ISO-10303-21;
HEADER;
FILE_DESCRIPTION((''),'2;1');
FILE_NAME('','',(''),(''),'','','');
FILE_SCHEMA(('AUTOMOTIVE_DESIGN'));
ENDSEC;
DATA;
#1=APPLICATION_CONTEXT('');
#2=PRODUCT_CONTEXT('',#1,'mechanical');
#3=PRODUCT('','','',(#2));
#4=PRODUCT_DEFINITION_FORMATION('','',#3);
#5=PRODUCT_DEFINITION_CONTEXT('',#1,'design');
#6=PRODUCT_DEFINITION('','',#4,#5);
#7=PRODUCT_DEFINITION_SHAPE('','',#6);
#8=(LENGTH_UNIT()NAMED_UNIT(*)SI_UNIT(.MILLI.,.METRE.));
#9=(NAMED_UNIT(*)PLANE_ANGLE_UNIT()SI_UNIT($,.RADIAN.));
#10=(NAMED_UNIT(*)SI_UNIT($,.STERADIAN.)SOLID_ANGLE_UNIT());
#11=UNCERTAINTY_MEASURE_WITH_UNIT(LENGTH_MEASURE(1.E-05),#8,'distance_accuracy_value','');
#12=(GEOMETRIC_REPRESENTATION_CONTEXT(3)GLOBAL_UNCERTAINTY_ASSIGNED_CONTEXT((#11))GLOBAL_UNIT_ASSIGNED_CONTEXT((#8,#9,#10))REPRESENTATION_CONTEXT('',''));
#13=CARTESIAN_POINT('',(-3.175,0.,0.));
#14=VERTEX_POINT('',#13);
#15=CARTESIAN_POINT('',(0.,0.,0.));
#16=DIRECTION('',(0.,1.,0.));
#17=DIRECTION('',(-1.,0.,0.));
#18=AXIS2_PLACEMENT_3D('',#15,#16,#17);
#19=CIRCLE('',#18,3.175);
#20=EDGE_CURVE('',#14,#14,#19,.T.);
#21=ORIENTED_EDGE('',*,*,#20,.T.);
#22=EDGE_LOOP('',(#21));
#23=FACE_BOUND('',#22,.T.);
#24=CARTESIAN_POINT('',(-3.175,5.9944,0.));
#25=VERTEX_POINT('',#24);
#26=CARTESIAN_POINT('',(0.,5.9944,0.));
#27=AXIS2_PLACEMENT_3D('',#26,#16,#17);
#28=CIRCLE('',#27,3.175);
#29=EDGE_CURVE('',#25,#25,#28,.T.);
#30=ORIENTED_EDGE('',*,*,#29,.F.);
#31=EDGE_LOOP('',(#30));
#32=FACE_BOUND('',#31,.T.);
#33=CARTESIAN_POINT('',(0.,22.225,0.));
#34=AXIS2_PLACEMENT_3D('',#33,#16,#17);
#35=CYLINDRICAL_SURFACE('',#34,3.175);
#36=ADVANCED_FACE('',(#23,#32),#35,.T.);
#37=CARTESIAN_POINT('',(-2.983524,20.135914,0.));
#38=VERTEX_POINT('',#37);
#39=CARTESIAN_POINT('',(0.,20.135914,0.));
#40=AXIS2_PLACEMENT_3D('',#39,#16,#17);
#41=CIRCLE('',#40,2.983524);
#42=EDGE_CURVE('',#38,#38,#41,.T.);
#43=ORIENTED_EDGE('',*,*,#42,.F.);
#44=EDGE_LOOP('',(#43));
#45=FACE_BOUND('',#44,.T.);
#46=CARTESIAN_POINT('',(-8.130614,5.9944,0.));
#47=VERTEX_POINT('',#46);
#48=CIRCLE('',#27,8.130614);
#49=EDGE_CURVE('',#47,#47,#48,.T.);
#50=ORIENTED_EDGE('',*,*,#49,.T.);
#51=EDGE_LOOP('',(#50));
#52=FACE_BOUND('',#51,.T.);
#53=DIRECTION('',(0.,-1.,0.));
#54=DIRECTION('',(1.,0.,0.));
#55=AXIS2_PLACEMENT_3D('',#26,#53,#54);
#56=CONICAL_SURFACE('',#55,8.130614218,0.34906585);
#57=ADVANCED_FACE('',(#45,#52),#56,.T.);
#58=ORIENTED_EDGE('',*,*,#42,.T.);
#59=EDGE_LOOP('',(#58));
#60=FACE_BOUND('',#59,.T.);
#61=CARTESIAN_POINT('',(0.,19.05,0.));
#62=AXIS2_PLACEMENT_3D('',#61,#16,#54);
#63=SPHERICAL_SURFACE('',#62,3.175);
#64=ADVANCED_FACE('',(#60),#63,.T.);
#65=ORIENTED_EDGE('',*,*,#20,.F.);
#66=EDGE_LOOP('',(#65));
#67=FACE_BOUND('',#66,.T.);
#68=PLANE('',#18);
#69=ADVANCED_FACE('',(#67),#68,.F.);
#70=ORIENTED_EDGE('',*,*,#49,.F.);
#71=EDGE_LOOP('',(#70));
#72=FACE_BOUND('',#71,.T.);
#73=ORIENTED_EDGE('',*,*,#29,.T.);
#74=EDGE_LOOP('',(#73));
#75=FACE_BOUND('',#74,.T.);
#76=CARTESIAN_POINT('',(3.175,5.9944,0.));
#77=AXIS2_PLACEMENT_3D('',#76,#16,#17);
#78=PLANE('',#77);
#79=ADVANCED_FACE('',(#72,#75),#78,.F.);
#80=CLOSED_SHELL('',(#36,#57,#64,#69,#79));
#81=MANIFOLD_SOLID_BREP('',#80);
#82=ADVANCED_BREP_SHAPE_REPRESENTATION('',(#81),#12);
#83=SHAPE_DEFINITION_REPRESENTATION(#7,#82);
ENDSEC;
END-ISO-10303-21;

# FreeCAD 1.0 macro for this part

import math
import FreeCAD as App
import Part
import Sketcher
Q = App.Units.Quantity

doc = App.newDocument("Part")
body = doc.addObject("PartDesign::Body", "Body")

# Sketch on XY plane
sketch1 = body.newObject("Sketcher::SketchObject", "Sketch")
sketch1.AttachmentSupport = (doc.getObject("XY_Plane"), [""])
sketch1.MapMode = "FlatFace"
sketch1.addGeometry([
    Part.LineSegment(App.Vector(0, 0, 0), App.Vector(3.2, 0, 0)),  # 0
    Part.LineSegment(App.Vector(3.2, 0, 0), App.Vector(3.2, 6, 0)),  # 1
    Part.LineSegment(App.Vector(3.2, 6, 0), App.Vector(8.1, 6, 0)),  # 2
    Part.LineSegment(App.Vector(8.1, 6, 0), App.Vector(3, 20.1, 0)),  # 3
    Part.ArcOfCircle(Part.Circle(App.Vector(0, 19.1, 0), App.Vector(0, 0, 1), 3.2), math.radians(20), math.radians(90)),  # 4
    Part.LineSegment(App.Vector(0, 22.2, 0), App.Vector(0, 0, 0)),  # 5
], False)
sketch1.addConstraint([
    Sketcher.Constraint("Coincident", 0, 2, 1, 1),
    Sketcher.Constraint("Coincident", 1, 2, 2, 1),
    Sketcher.Constraint("Coincident", 2, 2, 3, 1),
    Sketcher.Constraint("Tangent", 3, 2, 4, 1),
    Sketcher.Constraint("Coincident", 4, 2, 5, 1),
    Sketcher.Constraint("Coincident", 5, 2, 0, 1),
    Sketcher.Constraint("Horizontal", 0),
    Sketcher.Constraint("Vertical", 1),
    Sketcher.Constraint("Horizontal", 2),
    Sketcher.Constraint("Vertical", 5),
    Sketcher.Constraint("Coincident", 5, 2, -1, 1),
    Sketcher.Constraint("PointOnObject", 4, 3, -2),
    Sketcher.Constraint("Angle", 3, Q("110 deg")),
    Sketcher.Constraint("Radius", 4, Q("0.125 in")),
    Sketcher.Constraint("DistanceX", 0, 1, 0, 2, Q("0.125 in")),
    Sketcher.Constraint("DistanceY", 1, 1, 1, 2, Q("0.236 in")),
    Sketcher.Constraint("DistanceY", 5, 2, 5, 1, Q("0.875 in")),
])
revolution = body.newObject("PartDesign::Revolution", "Revolution")
revolution.Profile = sketch1
revolution.ReferenceAxis = (sketch1, ["V_Axis"])
revolution.Angle = 360

doc.recompute()
